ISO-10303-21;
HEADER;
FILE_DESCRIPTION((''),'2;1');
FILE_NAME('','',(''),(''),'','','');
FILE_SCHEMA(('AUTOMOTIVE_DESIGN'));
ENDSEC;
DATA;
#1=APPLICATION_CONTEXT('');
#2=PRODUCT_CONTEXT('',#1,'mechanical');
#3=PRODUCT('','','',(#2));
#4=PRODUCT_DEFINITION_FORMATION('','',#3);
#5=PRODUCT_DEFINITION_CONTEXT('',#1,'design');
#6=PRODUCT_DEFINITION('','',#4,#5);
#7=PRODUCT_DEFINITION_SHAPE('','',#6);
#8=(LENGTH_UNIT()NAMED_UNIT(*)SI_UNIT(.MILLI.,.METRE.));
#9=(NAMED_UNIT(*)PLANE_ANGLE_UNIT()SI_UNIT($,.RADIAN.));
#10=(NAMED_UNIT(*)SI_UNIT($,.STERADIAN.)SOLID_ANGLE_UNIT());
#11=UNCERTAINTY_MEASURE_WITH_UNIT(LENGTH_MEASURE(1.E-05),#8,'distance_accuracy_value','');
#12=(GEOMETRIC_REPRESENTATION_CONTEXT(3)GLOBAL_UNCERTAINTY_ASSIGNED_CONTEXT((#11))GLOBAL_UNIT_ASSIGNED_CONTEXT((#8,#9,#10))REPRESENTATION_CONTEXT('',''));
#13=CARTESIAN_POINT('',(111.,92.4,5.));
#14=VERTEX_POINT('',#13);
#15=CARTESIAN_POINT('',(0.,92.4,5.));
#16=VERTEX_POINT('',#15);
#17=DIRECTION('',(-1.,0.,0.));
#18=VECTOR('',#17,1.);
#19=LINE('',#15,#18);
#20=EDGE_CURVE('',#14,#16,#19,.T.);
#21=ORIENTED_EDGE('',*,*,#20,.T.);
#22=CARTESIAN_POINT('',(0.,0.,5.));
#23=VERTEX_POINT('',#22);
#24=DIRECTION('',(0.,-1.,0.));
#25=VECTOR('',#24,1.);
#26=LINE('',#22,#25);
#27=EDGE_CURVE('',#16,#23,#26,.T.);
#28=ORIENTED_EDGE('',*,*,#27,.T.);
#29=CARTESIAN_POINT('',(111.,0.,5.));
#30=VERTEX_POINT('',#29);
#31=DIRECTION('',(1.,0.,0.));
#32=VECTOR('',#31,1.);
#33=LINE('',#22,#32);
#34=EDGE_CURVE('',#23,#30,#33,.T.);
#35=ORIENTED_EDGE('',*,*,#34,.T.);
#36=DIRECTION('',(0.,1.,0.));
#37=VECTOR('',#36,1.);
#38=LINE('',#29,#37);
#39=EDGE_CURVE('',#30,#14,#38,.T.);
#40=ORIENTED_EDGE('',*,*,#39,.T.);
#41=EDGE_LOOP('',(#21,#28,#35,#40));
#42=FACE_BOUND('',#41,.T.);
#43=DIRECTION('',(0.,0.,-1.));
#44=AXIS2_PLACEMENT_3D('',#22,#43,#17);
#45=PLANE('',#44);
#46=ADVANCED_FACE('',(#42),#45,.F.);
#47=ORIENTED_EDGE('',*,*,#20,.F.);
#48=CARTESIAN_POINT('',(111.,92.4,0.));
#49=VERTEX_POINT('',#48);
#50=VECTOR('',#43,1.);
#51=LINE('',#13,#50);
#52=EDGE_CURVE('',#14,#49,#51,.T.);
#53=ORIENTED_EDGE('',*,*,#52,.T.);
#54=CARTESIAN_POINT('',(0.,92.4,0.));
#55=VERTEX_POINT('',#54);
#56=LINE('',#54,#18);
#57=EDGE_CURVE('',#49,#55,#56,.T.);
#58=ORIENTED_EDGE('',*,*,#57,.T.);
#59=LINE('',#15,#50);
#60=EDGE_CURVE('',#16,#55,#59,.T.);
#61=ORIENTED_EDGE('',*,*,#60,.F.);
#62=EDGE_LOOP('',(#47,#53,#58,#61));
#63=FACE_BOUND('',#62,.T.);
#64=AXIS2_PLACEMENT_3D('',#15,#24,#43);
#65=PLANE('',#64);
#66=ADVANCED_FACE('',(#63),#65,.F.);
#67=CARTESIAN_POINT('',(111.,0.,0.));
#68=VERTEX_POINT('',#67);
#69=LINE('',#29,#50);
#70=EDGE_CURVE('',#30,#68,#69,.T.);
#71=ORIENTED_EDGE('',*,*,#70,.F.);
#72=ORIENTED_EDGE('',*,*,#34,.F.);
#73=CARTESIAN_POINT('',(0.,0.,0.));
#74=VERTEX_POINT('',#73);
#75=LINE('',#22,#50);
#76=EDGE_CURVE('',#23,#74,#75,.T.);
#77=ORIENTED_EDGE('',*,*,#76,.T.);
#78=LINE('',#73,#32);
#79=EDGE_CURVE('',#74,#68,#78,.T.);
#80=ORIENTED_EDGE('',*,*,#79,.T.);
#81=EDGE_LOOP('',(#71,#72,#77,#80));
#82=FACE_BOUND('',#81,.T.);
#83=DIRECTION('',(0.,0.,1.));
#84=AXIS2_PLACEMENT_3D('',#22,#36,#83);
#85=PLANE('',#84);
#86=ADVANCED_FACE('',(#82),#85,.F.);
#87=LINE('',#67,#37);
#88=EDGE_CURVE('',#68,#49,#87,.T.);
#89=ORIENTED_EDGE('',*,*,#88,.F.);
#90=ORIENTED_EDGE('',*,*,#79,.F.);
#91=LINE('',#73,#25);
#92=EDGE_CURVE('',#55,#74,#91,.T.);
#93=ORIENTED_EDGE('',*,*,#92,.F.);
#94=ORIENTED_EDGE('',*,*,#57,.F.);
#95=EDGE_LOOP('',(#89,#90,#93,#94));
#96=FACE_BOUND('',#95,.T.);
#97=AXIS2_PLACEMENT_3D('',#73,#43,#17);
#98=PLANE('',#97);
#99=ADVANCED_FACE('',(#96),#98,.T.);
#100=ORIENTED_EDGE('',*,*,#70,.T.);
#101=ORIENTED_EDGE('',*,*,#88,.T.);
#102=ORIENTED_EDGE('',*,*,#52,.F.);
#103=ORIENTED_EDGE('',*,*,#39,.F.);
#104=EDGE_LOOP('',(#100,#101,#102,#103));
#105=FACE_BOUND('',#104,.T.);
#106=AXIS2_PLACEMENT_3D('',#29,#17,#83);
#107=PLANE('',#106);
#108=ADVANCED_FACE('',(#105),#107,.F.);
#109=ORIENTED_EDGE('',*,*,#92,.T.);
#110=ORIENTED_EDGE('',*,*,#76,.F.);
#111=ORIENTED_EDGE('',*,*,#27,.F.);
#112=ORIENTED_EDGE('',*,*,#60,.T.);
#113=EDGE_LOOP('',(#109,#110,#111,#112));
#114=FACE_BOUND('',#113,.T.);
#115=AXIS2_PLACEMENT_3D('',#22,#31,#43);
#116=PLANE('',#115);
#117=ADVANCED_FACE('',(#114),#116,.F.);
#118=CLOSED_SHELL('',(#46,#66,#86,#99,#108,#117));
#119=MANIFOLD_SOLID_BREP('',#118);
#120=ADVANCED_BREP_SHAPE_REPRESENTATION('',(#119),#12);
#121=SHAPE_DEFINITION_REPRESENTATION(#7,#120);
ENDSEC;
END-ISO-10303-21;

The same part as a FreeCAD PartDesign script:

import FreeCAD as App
import Part
import Sketcher

V = App.Vector
Q = App.Units.Quantity


def add_polygon(sketch, points):
    """Adds a closed chain of lines whose ends are joined by coincident constraints."""
    first, n = sketch.GeometryCount, len(points)
    for a, b in zip(points, points[1:] + points[:1]):
        sketch.addGeometry(Part.LineSegment(App.Vector(*a, 0), App.Vector(*b, 0)), False)
    for i in range(n):
        sketch.addConstraint(Sketcher.Constraint("Coincident", first + i, 2, first + (i + 1) % n, 1))

doc = App.newDocument("Part")
body = doc.addObject("PartDesign::Body", "Body")

sketch1 = body.newObject("Sketcher::SketchObject", "Sketch")
sketch1.AttachmentSupport = (doc.getObject("XY_Plane"), [""])
sketch1.MapMode = "FlatFace"
add_polygon(sketch1, [(0, 92), (0, 0), (111, 0), (111, 92)])
sketch1.addConstraint([
    Sketcher.Constraint("Vertical", 0),
    Sketcher.Constraint("Horizontal", 1),
    Sketcher.Constraint("Vertical", 2),
    Sketcher.Constraint("Horizontal", 3),
    Sketcher.Constraint("Coincident", 0, 2, -1, 1),
    Sketcher.Constraint("DistanceX", 1, 1, 1, 2, Q("111 mm")),
    Sketcher.Constraint("DistanceY", 0, 2, 0, 1, Q("92.4 mm")),
])
pad1 = body.newObject("PartDesign::Pad", "Pad")
pad1.Profile = sketch1
pad1.Length = 5

doc.recompute()
